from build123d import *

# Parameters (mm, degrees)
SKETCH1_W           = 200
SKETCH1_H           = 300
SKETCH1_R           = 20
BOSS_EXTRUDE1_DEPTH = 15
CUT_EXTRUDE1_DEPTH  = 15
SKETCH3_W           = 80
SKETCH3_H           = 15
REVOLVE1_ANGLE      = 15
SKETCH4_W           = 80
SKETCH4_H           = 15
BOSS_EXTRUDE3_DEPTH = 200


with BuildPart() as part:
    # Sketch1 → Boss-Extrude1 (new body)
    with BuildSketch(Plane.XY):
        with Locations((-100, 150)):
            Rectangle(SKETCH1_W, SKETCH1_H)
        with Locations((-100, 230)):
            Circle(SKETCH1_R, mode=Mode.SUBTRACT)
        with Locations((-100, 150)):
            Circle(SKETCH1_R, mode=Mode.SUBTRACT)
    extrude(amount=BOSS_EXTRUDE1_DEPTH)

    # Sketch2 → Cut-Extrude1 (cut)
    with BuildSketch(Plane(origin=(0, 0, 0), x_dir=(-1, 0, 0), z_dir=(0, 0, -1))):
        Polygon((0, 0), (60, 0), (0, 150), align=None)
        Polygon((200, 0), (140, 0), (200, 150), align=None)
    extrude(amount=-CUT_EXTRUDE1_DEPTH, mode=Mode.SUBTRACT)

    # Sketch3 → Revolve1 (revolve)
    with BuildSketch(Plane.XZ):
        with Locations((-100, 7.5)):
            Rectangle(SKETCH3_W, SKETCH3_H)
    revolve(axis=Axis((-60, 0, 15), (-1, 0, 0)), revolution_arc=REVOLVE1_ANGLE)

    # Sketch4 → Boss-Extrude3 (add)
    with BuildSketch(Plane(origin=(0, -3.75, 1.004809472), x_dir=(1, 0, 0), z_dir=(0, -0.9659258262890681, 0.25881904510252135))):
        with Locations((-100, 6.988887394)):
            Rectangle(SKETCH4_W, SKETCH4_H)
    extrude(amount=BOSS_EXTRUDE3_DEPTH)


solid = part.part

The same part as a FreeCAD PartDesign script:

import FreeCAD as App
import Part
import Sketcher
from FreeCAD import Vector
Q = App.Units.Quantity


def add_polygon(sketch, points):
    """Adds a closed chain of lines whose ends are joined by coincident constraints."""
    first, n = sketch.GeometryCount, len(points)
    for a, b in zip(points, points[1:] + points[:1]):
        sketch.addGeometry(Part.LineSegment(App.Vector(*a, 0), App.Vector(*b, 0)), False)
    for i in range(n):
        sketch.addConstraint(Sketcher.Constraint("Coincident", first + i, 2, first + (i + 1) % n, 1))

doc = App.newDocument("Part")
params = doc.addObject("Spreadsheet::Sheet", "Params")
for row, (alias, value) in enumerate([
    ("sketch1_diameter", "40 mm"),
    ("sketch1_width", "200 mm"),
    ("sketch1_height", "300 mm"),
    ("pad1_length", "15 mm"),
    ("sketch2_width", "60 mm"),
    ("sketch2_height", "150 mm"),
    ("pocket1_length", "15 mm"),
    ("sketch3_width", "80 mm"),
    ("sketch3_height", "15 mm"),
    ("revolution_angle", "15 deg"),
    ("sketch4_width", "80 mm"),
    ("sketch4_height", "15 mm"),
    ("pad2_length", "200 mm"),
], start=1):
    params.set(f"A{row}", alias)
    params.set(f"B{row}", "=" + value)
    params.setAlias(f"B{row}", alias)

body = doc.addObject("PartDesign::Body", "Body")

# Sketch on XY plane
sketch1 = body.newObject("Sketcher::SketchObject", "Sketch")
sketch1.AttachmentSupport = (doc.getObject("XY_Plane"), [""])
sketch1.MapMode = "FlatFace"
add_polygon(sketch1, [(-200, 300), (-200, 0), (0, 0), (0, 300)])  # lines 0-3
sketch1.addGeometry(Part.Circle(Vector(-100, 150, 0), Vector(0, 0, 1), 20), False)  # 4
sketch1.addGeometry(Part.Circle(Vector(-100, 230, 0), Vector(0, 0, 1), 20), False)  # 5
sketch1.addConstraint([
    Sketcher.Constraint("Vertical", 0),
    Sketcher.Constraint("Horizontal", 1),
    Sketcher.Constraint("Vertical", 2),
    Sketcher.Constraint("Horizontal", 3),
    Sketcher.Constraint("Coincident", 1, 2, -1, 1),
    Sketcher.Constraint("Equal", 4, 5),
    Sketcher.Constraint("Vertical", 4, 3, 5, 3),
    Sketcher.Constraint("Diameter", 4, Q("40 mm")),
    Sketcher.Constraint("DistanceX", 1, 1, 1, 2, Q("200 mm")),
    Sketcher.Constraint("DistanceY", 0, 2, 0, 1, Q("300 mm")),
    Sketcher.Constraint("DistanceX", 4, 3, -1, 1, Q("100 mm")),
    Sketcher.Constraint("DistanceY", -1, 1, 4, 3, Q("150 mm")),
    Sketcher.Constraint("DistanceY", -1, 1, 5, 3, Q("230 mm")),
])
sketch1.setExpression("Constraints[11]", "Params.sketch1_diameter")
sketch1.setExpression("Constraints[12]", "Params.sketch1_width")
sketch1.setExpression("Constraints[13]", "Params.sketch1_height")
pad1 = body.newObject("PartDesign::Pad", "Pad")
pad1.Profile = sketch1
pad1.setExpression("Length", "Params.pad1_length")

# Sketch on XY plane
sketch2 = body.newObject("Sketcher::SketchObject", "Sketch001")
sketch2.AttachmentSupport = (doc.getObject("XY_Plane"), [""])
sketch2.MapMode = "FlatFace"
add_polygon(sketch2, [(0, 0), (-60, 0), (0, 150)])  # lines 0-2
add_polygon(sketch2, [(-140, 0), (-200, 0), (-200, 150)])  # lines 3-5
sketch2.addConstraint([
    Sketcher.Constraint("Horizontal", 0),
    Sketcher.Constraint("Vertical", 2),
    Sketcher.Constraint("Horizontal", 3),
    Sketcher.Constraint("Vertical", 4),
    Sketcher.Constraint("Coincident", 2, 2, -1, 1),
    Sketcher.Constraint("PointOnObject", 3, 2, -1),
    Sketcher.Constraint("Horizontal", 1, 2, 4, 2),
    Sketcher.Constraint("Equal", 0, 3),
    Sketcher.Constraint("DistanceX", 0, 2, 0, 1, Q("60 mm")),
    Sketcher.Constraint("DistanceY", 2, 2, 2, 1, Q("150 mm")),
    Sketcher.Constraint("DistanceX", 3, 2, -1, 1, Q("200 mm")),
])
sketch2.setExpression("Constraints[14]", "Params.sketch2_width")
sketch2.setExpression("Constraints[15]", "Params.sketch2_height")
pocket1 = body.newObject("PartDesign::Pocket", "Pocket")
pocket1.Profile = sketch2
pocket1.setExpression("Length", "Params.pocket1_length")
pocket1.Reversed = True

# Sketch on XZ plane
sketch3 = body.newObject("Sketcher::SketchObject", "Sketch002")
sketch3.AttachmentSupport = (doc.getObject("XZ_Plane"), [""])
sketch3.MapMode = "FlatFace"
add_polygon(sketch3, [(-140, 15), (-140, 0), (-60, 0), (-60, 15)])  # lines 0-3
sketch3.addGeometry(Part.LineSegment(Vector(-60, 15, 0), Vector(-140, 15, 0)), True)  # axis
sketch3.addConstraint([
    Sketcher.Constraint("Vertical", 0),
    Sketcher.Constraint("Horizontal", 1),
    Sketcher.Constraint("Vertical", 2),
    Sketcher.Constraint("Horizontal", 3),
    Sketcher.Constraint("Horizontal", 4),
    Sketcher.Constraint("Coincident", 4, 1, 2, 2),
    Sketcher.Constraint("PointOnObject", 0, 2, -1),
    Sketcher.Constraint("Vertical", 0, 2, 4, 2),
    Sketcher.Constraint("DistanceX", 1, 1, 1, 2, Q("80 mm")),
    Sketcher.Constraint("DistanceY", 0, 2, 0, 1, Q("15 mm")),
    Sketcher.Constraint("DistanceX", 0, 2, -1, 1, Q("140 mm")),
])
sketch3.setExpression("Constraints[12]", "Params.sketch3_width")
sketch3.setExpression("Constraints[13]", "Params.sketch3_height")
revolution = body.newObject("PartDesign::Revolution", "Revolution")
revolution.Profile = sketch3
revolution.ReferenceAxis = (sketch3, ["Axis0"])
revolution.setExpression("Angle", "Params.revolution_angle")

# Sketch on an angled plane
sketch4 = body.newObject("Sketcher::SketchObject", "Sketch003")
sketch4.Placement = App.Placement(Vector(0, -3.75, 1.004809), App.Rotation(Vector(1, 0, 0), Vector(0, 0.258819045, 0.965925826), Vector(0, -0.965925826, 0.258819045), "ZXY"))
add_polygon(sketch4, [(-140, 14), (-140, -1), (-60, -1), (-60, 14)])  # lines 0-3
sketch4.addConstraint([
    Sketcher.Constraint("Vertical", 0),
    Sketcher.Constraint("Horizontal", 1),
    Sketcher.Constraint("Vertical", 2),
    Sketcher.Constraint("Horizontal", 3),
    Sketcher.Constraint("DistanceX", 1, 1, 1, 2, Q("80 mm")),
    Sketcher.Constraint("DistanceY", 0, 2, 0, 1, Q("15 mm")),
    Sketcher.Constraint("DistanceX", 0, 2, -1, 1, Q("140 mm")),
    Sketcher.Constraint("DistanceY", 0, 2, -1, 1, Q("0.511113 mm")),
])
sketch4.setExpression("Constraints[8]", "Params.sketch4_width")
sketch4.setExpression("Constraints[9]", "Params.sketch4_height")
pad2 = body.newObject("PartDesign::Pad", "Pad001")
pad2.Profile = sketch4
pad2.setExpression("Length", "Params.pad2_length")

doc.recompute()
